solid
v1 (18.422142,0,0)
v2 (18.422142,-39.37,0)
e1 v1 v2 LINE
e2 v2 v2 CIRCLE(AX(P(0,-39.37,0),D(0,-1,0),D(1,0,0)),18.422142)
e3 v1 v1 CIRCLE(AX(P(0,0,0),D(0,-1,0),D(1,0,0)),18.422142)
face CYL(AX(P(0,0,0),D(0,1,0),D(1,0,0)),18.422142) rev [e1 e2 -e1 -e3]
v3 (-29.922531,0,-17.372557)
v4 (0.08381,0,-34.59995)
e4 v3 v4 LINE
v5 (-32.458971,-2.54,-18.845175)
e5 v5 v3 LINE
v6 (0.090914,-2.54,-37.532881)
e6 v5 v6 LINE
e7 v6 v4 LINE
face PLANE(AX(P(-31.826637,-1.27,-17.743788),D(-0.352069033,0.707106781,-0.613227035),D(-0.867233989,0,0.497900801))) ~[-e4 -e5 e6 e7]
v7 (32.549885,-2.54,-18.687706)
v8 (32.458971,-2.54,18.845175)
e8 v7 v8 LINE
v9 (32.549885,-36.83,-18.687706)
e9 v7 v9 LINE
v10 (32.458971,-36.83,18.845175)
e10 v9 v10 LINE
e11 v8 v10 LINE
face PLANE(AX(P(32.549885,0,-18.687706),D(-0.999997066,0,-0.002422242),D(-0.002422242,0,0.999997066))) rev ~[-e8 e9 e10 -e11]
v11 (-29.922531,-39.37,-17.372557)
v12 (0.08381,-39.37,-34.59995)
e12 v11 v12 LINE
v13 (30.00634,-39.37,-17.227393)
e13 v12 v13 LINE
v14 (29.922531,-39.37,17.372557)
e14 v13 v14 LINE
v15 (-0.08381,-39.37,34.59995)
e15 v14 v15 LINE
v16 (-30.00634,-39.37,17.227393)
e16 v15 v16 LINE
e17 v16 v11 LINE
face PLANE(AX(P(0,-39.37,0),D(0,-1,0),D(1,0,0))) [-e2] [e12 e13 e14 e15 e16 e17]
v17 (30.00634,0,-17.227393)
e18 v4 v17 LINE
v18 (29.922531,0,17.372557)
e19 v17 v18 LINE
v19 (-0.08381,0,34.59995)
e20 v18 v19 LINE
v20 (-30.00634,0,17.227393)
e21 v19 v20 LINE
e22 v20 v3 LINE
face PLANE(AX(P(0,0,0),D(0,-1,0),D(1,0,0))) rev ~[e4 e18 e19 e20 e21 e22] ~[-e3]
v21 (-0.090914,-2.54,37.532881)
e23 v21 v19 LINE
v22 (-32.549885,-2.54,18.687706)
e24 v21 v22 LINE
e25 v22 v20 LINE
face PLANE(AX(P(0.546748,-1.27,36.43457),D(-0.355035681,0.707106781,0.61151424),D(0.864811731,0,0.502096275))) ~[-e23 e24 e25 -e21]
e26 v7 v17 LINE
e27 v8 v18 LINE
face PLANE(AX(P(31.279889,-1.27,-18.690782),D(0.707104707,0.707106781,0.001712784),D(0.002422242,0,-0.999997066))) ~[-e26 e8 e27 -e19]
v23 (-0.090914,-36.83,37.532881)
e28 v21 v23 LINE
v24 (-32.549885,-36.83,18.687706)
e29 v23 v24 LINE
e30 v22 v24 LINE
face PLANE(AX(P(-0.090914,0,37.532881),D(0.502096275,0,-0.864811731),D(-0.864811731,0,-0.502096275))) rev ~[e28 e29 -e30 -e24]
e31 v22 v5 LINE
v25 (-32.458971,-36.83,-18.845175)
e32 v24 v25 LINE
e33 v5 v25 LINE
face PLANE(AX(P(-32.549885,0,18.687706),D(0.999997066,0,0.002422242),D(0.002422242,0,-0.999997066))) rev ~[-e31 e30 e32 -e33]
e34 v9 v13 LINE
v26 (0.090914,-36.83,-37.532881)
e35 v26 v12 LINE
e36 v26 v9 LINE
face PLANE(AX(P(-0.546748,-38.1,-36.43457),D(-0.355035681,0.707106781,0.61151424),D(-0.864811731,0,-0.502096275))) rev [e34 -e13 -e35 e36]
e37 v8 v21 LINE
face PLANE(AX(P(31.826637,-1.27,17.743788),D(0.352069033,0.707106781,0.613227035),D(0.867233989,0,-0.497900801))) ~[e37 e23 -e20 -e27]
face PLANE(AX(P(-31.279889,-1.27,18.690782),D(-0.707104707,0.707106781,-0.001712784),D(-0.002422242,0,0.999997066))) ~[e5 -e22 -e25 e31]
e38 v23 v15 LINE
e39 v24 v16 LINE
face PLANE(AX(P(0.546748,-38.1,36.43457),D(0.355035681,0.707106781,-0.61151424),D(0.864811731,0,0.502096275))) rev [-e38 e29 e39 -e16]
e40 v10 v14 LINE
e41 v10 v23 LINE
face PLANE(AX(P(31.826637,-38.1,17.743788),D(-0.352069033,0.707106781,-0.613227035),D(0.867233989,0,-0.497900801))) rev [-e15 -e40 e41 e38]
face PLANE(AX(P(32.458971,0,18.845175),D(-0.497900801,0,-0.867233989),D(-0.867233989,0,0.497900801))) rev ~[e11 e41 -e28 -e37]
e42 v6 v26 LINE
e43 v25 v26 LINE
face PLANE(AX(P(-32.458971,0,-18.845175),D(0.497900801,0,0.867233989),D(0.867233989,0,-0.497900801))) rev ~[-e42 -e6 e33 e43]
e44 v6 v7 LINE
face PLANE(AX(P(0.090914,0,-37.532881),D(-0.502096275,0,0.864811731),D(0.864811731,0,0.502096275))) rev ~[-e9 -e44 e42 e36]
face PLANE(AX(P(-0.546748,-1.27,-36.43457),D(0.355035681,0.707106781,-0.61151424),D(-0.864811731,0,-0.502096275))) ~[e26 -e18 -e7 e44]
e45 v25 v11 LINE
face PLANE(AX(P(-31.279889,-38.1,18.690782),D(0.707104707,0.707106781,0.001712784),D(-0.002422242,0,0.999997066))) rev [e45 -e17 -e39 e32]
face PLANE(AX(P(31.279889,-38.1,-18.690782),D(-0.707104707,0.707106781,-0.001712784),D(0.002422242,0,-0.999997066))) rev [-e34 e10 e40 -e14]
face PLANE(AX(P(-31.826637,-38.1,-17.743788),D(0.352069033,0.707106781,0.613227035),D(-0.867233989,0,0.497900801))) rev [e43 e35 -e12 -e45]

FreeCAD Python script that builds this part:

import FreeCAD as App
import Part
import Sketcher
Q = App.Units.Quantity


def edges_at(feature, points):
    """Names of the edges that pass closest to the given points."""
    edges = feature.Shape.Edges
    near = lambda p: min(range(len(edges)), key=lambda i: edges[i].distToShape(Part.Vertex(*p))[0])
    return sorted({f"Edge{near(p) + 1}" for p in points})


def add_polygon(sketch, points):
    """Adds a closed chain of lines whose ends are joined by coincident constraints."""
    first, n = sketch.GeometryCount, len(points)
    for a, b in zip(points, points[1:] + points[:1]):
        sketch.addGeometry(Part.LineSegment(App.Vector(*a, 0), App.Vector(*b, 0)), False)
    for i in range(n):
        sketch.addConstraint(Sketcher.Constraint("Coincident", first + i, 2, first + (i + 1) % n, 1))

doc = App.newDocument("Part")
body = doc.addObject("PartDesign::Body", "Body")

# Sketch on XZ plane
sketch1 = body.newObject("Sketcher::SketchObject", "Sketch")
sketch1.AttachmentSupport = (doc.getObject("XZ_Plane"), [""])
sketch1.MapMode = "FlatFace"
add_polygon(sketch1, [(32, 19), (0, 38), (-33, 19), (-32, -19), (0, -38), (33, -19)])  # lines 0-5
sketch1.addGeometry(Part.Circle(App.Vector(0, 0, 0), App.Vector(0, 0, 1), 18), False)  # 6
sketch1.addConstraint([
    Sketcher.Constraint("Coincident", 6, 3, -1, 1),
    Sketcher.Constraint("Symmetric", 0, 2, 3, 2, -1, 1),
    Sketcher.Constraint("Symmetric", 1, 2, 4, 2, -1, 1),
    Sketcher.Constraint("Symmetric", 2, 2, 5, 2, -1, 1),
    Sketcher.Constraint("Equal", 0, 1),
    Sketcher.Constraint("Equal", 1, 2),
    Sketcher.Constraint("Diameter", 6, 36.844284),
    Sketcher.Constraint("DistanceX", 1, 2, 3, 2, 32.640799),
    Sketcher.Constraint("Distance", 0, 37.53299),
    Sketcher.Constraint("DistanceY", -1, 1, 0, 2, 37.532881),
    Sketcher.Constraint("DistanceX", 2, 2, -1, 1, 32.458971),
])
pad1 = body.newObject("PartDesign::Pad", "Pad")
pad1.Profile = sketch1
pad1.Length = Q("1.55 in")
doc.recompute()

chamfer = body.newObject("PartDesign::Chamfer", "Chamfer")
chamfer.Base = (pad1, edges_at(pad1, [
    (-32.504, 0, -0.079),
    (-16.184, 0, -28.189),
    (16.32, 0, -28.11),
    (32.504, 0, 0.079),
    (16.184, 0, 28.189),
    (-16.32, 0, 28.11),
    (16.184, -39.37, 28.189),
    (-16.32, -39.37, 28.11),
    (-32.504, -39.37, -0.079),
    (-16.184, -39.37, -28.189),
    (16.32, -39.37, -28.11),
    (32.504, -39.37, 0.079),
]))
chamfer.Size = Q("0.1 in")

doc.recompute()
